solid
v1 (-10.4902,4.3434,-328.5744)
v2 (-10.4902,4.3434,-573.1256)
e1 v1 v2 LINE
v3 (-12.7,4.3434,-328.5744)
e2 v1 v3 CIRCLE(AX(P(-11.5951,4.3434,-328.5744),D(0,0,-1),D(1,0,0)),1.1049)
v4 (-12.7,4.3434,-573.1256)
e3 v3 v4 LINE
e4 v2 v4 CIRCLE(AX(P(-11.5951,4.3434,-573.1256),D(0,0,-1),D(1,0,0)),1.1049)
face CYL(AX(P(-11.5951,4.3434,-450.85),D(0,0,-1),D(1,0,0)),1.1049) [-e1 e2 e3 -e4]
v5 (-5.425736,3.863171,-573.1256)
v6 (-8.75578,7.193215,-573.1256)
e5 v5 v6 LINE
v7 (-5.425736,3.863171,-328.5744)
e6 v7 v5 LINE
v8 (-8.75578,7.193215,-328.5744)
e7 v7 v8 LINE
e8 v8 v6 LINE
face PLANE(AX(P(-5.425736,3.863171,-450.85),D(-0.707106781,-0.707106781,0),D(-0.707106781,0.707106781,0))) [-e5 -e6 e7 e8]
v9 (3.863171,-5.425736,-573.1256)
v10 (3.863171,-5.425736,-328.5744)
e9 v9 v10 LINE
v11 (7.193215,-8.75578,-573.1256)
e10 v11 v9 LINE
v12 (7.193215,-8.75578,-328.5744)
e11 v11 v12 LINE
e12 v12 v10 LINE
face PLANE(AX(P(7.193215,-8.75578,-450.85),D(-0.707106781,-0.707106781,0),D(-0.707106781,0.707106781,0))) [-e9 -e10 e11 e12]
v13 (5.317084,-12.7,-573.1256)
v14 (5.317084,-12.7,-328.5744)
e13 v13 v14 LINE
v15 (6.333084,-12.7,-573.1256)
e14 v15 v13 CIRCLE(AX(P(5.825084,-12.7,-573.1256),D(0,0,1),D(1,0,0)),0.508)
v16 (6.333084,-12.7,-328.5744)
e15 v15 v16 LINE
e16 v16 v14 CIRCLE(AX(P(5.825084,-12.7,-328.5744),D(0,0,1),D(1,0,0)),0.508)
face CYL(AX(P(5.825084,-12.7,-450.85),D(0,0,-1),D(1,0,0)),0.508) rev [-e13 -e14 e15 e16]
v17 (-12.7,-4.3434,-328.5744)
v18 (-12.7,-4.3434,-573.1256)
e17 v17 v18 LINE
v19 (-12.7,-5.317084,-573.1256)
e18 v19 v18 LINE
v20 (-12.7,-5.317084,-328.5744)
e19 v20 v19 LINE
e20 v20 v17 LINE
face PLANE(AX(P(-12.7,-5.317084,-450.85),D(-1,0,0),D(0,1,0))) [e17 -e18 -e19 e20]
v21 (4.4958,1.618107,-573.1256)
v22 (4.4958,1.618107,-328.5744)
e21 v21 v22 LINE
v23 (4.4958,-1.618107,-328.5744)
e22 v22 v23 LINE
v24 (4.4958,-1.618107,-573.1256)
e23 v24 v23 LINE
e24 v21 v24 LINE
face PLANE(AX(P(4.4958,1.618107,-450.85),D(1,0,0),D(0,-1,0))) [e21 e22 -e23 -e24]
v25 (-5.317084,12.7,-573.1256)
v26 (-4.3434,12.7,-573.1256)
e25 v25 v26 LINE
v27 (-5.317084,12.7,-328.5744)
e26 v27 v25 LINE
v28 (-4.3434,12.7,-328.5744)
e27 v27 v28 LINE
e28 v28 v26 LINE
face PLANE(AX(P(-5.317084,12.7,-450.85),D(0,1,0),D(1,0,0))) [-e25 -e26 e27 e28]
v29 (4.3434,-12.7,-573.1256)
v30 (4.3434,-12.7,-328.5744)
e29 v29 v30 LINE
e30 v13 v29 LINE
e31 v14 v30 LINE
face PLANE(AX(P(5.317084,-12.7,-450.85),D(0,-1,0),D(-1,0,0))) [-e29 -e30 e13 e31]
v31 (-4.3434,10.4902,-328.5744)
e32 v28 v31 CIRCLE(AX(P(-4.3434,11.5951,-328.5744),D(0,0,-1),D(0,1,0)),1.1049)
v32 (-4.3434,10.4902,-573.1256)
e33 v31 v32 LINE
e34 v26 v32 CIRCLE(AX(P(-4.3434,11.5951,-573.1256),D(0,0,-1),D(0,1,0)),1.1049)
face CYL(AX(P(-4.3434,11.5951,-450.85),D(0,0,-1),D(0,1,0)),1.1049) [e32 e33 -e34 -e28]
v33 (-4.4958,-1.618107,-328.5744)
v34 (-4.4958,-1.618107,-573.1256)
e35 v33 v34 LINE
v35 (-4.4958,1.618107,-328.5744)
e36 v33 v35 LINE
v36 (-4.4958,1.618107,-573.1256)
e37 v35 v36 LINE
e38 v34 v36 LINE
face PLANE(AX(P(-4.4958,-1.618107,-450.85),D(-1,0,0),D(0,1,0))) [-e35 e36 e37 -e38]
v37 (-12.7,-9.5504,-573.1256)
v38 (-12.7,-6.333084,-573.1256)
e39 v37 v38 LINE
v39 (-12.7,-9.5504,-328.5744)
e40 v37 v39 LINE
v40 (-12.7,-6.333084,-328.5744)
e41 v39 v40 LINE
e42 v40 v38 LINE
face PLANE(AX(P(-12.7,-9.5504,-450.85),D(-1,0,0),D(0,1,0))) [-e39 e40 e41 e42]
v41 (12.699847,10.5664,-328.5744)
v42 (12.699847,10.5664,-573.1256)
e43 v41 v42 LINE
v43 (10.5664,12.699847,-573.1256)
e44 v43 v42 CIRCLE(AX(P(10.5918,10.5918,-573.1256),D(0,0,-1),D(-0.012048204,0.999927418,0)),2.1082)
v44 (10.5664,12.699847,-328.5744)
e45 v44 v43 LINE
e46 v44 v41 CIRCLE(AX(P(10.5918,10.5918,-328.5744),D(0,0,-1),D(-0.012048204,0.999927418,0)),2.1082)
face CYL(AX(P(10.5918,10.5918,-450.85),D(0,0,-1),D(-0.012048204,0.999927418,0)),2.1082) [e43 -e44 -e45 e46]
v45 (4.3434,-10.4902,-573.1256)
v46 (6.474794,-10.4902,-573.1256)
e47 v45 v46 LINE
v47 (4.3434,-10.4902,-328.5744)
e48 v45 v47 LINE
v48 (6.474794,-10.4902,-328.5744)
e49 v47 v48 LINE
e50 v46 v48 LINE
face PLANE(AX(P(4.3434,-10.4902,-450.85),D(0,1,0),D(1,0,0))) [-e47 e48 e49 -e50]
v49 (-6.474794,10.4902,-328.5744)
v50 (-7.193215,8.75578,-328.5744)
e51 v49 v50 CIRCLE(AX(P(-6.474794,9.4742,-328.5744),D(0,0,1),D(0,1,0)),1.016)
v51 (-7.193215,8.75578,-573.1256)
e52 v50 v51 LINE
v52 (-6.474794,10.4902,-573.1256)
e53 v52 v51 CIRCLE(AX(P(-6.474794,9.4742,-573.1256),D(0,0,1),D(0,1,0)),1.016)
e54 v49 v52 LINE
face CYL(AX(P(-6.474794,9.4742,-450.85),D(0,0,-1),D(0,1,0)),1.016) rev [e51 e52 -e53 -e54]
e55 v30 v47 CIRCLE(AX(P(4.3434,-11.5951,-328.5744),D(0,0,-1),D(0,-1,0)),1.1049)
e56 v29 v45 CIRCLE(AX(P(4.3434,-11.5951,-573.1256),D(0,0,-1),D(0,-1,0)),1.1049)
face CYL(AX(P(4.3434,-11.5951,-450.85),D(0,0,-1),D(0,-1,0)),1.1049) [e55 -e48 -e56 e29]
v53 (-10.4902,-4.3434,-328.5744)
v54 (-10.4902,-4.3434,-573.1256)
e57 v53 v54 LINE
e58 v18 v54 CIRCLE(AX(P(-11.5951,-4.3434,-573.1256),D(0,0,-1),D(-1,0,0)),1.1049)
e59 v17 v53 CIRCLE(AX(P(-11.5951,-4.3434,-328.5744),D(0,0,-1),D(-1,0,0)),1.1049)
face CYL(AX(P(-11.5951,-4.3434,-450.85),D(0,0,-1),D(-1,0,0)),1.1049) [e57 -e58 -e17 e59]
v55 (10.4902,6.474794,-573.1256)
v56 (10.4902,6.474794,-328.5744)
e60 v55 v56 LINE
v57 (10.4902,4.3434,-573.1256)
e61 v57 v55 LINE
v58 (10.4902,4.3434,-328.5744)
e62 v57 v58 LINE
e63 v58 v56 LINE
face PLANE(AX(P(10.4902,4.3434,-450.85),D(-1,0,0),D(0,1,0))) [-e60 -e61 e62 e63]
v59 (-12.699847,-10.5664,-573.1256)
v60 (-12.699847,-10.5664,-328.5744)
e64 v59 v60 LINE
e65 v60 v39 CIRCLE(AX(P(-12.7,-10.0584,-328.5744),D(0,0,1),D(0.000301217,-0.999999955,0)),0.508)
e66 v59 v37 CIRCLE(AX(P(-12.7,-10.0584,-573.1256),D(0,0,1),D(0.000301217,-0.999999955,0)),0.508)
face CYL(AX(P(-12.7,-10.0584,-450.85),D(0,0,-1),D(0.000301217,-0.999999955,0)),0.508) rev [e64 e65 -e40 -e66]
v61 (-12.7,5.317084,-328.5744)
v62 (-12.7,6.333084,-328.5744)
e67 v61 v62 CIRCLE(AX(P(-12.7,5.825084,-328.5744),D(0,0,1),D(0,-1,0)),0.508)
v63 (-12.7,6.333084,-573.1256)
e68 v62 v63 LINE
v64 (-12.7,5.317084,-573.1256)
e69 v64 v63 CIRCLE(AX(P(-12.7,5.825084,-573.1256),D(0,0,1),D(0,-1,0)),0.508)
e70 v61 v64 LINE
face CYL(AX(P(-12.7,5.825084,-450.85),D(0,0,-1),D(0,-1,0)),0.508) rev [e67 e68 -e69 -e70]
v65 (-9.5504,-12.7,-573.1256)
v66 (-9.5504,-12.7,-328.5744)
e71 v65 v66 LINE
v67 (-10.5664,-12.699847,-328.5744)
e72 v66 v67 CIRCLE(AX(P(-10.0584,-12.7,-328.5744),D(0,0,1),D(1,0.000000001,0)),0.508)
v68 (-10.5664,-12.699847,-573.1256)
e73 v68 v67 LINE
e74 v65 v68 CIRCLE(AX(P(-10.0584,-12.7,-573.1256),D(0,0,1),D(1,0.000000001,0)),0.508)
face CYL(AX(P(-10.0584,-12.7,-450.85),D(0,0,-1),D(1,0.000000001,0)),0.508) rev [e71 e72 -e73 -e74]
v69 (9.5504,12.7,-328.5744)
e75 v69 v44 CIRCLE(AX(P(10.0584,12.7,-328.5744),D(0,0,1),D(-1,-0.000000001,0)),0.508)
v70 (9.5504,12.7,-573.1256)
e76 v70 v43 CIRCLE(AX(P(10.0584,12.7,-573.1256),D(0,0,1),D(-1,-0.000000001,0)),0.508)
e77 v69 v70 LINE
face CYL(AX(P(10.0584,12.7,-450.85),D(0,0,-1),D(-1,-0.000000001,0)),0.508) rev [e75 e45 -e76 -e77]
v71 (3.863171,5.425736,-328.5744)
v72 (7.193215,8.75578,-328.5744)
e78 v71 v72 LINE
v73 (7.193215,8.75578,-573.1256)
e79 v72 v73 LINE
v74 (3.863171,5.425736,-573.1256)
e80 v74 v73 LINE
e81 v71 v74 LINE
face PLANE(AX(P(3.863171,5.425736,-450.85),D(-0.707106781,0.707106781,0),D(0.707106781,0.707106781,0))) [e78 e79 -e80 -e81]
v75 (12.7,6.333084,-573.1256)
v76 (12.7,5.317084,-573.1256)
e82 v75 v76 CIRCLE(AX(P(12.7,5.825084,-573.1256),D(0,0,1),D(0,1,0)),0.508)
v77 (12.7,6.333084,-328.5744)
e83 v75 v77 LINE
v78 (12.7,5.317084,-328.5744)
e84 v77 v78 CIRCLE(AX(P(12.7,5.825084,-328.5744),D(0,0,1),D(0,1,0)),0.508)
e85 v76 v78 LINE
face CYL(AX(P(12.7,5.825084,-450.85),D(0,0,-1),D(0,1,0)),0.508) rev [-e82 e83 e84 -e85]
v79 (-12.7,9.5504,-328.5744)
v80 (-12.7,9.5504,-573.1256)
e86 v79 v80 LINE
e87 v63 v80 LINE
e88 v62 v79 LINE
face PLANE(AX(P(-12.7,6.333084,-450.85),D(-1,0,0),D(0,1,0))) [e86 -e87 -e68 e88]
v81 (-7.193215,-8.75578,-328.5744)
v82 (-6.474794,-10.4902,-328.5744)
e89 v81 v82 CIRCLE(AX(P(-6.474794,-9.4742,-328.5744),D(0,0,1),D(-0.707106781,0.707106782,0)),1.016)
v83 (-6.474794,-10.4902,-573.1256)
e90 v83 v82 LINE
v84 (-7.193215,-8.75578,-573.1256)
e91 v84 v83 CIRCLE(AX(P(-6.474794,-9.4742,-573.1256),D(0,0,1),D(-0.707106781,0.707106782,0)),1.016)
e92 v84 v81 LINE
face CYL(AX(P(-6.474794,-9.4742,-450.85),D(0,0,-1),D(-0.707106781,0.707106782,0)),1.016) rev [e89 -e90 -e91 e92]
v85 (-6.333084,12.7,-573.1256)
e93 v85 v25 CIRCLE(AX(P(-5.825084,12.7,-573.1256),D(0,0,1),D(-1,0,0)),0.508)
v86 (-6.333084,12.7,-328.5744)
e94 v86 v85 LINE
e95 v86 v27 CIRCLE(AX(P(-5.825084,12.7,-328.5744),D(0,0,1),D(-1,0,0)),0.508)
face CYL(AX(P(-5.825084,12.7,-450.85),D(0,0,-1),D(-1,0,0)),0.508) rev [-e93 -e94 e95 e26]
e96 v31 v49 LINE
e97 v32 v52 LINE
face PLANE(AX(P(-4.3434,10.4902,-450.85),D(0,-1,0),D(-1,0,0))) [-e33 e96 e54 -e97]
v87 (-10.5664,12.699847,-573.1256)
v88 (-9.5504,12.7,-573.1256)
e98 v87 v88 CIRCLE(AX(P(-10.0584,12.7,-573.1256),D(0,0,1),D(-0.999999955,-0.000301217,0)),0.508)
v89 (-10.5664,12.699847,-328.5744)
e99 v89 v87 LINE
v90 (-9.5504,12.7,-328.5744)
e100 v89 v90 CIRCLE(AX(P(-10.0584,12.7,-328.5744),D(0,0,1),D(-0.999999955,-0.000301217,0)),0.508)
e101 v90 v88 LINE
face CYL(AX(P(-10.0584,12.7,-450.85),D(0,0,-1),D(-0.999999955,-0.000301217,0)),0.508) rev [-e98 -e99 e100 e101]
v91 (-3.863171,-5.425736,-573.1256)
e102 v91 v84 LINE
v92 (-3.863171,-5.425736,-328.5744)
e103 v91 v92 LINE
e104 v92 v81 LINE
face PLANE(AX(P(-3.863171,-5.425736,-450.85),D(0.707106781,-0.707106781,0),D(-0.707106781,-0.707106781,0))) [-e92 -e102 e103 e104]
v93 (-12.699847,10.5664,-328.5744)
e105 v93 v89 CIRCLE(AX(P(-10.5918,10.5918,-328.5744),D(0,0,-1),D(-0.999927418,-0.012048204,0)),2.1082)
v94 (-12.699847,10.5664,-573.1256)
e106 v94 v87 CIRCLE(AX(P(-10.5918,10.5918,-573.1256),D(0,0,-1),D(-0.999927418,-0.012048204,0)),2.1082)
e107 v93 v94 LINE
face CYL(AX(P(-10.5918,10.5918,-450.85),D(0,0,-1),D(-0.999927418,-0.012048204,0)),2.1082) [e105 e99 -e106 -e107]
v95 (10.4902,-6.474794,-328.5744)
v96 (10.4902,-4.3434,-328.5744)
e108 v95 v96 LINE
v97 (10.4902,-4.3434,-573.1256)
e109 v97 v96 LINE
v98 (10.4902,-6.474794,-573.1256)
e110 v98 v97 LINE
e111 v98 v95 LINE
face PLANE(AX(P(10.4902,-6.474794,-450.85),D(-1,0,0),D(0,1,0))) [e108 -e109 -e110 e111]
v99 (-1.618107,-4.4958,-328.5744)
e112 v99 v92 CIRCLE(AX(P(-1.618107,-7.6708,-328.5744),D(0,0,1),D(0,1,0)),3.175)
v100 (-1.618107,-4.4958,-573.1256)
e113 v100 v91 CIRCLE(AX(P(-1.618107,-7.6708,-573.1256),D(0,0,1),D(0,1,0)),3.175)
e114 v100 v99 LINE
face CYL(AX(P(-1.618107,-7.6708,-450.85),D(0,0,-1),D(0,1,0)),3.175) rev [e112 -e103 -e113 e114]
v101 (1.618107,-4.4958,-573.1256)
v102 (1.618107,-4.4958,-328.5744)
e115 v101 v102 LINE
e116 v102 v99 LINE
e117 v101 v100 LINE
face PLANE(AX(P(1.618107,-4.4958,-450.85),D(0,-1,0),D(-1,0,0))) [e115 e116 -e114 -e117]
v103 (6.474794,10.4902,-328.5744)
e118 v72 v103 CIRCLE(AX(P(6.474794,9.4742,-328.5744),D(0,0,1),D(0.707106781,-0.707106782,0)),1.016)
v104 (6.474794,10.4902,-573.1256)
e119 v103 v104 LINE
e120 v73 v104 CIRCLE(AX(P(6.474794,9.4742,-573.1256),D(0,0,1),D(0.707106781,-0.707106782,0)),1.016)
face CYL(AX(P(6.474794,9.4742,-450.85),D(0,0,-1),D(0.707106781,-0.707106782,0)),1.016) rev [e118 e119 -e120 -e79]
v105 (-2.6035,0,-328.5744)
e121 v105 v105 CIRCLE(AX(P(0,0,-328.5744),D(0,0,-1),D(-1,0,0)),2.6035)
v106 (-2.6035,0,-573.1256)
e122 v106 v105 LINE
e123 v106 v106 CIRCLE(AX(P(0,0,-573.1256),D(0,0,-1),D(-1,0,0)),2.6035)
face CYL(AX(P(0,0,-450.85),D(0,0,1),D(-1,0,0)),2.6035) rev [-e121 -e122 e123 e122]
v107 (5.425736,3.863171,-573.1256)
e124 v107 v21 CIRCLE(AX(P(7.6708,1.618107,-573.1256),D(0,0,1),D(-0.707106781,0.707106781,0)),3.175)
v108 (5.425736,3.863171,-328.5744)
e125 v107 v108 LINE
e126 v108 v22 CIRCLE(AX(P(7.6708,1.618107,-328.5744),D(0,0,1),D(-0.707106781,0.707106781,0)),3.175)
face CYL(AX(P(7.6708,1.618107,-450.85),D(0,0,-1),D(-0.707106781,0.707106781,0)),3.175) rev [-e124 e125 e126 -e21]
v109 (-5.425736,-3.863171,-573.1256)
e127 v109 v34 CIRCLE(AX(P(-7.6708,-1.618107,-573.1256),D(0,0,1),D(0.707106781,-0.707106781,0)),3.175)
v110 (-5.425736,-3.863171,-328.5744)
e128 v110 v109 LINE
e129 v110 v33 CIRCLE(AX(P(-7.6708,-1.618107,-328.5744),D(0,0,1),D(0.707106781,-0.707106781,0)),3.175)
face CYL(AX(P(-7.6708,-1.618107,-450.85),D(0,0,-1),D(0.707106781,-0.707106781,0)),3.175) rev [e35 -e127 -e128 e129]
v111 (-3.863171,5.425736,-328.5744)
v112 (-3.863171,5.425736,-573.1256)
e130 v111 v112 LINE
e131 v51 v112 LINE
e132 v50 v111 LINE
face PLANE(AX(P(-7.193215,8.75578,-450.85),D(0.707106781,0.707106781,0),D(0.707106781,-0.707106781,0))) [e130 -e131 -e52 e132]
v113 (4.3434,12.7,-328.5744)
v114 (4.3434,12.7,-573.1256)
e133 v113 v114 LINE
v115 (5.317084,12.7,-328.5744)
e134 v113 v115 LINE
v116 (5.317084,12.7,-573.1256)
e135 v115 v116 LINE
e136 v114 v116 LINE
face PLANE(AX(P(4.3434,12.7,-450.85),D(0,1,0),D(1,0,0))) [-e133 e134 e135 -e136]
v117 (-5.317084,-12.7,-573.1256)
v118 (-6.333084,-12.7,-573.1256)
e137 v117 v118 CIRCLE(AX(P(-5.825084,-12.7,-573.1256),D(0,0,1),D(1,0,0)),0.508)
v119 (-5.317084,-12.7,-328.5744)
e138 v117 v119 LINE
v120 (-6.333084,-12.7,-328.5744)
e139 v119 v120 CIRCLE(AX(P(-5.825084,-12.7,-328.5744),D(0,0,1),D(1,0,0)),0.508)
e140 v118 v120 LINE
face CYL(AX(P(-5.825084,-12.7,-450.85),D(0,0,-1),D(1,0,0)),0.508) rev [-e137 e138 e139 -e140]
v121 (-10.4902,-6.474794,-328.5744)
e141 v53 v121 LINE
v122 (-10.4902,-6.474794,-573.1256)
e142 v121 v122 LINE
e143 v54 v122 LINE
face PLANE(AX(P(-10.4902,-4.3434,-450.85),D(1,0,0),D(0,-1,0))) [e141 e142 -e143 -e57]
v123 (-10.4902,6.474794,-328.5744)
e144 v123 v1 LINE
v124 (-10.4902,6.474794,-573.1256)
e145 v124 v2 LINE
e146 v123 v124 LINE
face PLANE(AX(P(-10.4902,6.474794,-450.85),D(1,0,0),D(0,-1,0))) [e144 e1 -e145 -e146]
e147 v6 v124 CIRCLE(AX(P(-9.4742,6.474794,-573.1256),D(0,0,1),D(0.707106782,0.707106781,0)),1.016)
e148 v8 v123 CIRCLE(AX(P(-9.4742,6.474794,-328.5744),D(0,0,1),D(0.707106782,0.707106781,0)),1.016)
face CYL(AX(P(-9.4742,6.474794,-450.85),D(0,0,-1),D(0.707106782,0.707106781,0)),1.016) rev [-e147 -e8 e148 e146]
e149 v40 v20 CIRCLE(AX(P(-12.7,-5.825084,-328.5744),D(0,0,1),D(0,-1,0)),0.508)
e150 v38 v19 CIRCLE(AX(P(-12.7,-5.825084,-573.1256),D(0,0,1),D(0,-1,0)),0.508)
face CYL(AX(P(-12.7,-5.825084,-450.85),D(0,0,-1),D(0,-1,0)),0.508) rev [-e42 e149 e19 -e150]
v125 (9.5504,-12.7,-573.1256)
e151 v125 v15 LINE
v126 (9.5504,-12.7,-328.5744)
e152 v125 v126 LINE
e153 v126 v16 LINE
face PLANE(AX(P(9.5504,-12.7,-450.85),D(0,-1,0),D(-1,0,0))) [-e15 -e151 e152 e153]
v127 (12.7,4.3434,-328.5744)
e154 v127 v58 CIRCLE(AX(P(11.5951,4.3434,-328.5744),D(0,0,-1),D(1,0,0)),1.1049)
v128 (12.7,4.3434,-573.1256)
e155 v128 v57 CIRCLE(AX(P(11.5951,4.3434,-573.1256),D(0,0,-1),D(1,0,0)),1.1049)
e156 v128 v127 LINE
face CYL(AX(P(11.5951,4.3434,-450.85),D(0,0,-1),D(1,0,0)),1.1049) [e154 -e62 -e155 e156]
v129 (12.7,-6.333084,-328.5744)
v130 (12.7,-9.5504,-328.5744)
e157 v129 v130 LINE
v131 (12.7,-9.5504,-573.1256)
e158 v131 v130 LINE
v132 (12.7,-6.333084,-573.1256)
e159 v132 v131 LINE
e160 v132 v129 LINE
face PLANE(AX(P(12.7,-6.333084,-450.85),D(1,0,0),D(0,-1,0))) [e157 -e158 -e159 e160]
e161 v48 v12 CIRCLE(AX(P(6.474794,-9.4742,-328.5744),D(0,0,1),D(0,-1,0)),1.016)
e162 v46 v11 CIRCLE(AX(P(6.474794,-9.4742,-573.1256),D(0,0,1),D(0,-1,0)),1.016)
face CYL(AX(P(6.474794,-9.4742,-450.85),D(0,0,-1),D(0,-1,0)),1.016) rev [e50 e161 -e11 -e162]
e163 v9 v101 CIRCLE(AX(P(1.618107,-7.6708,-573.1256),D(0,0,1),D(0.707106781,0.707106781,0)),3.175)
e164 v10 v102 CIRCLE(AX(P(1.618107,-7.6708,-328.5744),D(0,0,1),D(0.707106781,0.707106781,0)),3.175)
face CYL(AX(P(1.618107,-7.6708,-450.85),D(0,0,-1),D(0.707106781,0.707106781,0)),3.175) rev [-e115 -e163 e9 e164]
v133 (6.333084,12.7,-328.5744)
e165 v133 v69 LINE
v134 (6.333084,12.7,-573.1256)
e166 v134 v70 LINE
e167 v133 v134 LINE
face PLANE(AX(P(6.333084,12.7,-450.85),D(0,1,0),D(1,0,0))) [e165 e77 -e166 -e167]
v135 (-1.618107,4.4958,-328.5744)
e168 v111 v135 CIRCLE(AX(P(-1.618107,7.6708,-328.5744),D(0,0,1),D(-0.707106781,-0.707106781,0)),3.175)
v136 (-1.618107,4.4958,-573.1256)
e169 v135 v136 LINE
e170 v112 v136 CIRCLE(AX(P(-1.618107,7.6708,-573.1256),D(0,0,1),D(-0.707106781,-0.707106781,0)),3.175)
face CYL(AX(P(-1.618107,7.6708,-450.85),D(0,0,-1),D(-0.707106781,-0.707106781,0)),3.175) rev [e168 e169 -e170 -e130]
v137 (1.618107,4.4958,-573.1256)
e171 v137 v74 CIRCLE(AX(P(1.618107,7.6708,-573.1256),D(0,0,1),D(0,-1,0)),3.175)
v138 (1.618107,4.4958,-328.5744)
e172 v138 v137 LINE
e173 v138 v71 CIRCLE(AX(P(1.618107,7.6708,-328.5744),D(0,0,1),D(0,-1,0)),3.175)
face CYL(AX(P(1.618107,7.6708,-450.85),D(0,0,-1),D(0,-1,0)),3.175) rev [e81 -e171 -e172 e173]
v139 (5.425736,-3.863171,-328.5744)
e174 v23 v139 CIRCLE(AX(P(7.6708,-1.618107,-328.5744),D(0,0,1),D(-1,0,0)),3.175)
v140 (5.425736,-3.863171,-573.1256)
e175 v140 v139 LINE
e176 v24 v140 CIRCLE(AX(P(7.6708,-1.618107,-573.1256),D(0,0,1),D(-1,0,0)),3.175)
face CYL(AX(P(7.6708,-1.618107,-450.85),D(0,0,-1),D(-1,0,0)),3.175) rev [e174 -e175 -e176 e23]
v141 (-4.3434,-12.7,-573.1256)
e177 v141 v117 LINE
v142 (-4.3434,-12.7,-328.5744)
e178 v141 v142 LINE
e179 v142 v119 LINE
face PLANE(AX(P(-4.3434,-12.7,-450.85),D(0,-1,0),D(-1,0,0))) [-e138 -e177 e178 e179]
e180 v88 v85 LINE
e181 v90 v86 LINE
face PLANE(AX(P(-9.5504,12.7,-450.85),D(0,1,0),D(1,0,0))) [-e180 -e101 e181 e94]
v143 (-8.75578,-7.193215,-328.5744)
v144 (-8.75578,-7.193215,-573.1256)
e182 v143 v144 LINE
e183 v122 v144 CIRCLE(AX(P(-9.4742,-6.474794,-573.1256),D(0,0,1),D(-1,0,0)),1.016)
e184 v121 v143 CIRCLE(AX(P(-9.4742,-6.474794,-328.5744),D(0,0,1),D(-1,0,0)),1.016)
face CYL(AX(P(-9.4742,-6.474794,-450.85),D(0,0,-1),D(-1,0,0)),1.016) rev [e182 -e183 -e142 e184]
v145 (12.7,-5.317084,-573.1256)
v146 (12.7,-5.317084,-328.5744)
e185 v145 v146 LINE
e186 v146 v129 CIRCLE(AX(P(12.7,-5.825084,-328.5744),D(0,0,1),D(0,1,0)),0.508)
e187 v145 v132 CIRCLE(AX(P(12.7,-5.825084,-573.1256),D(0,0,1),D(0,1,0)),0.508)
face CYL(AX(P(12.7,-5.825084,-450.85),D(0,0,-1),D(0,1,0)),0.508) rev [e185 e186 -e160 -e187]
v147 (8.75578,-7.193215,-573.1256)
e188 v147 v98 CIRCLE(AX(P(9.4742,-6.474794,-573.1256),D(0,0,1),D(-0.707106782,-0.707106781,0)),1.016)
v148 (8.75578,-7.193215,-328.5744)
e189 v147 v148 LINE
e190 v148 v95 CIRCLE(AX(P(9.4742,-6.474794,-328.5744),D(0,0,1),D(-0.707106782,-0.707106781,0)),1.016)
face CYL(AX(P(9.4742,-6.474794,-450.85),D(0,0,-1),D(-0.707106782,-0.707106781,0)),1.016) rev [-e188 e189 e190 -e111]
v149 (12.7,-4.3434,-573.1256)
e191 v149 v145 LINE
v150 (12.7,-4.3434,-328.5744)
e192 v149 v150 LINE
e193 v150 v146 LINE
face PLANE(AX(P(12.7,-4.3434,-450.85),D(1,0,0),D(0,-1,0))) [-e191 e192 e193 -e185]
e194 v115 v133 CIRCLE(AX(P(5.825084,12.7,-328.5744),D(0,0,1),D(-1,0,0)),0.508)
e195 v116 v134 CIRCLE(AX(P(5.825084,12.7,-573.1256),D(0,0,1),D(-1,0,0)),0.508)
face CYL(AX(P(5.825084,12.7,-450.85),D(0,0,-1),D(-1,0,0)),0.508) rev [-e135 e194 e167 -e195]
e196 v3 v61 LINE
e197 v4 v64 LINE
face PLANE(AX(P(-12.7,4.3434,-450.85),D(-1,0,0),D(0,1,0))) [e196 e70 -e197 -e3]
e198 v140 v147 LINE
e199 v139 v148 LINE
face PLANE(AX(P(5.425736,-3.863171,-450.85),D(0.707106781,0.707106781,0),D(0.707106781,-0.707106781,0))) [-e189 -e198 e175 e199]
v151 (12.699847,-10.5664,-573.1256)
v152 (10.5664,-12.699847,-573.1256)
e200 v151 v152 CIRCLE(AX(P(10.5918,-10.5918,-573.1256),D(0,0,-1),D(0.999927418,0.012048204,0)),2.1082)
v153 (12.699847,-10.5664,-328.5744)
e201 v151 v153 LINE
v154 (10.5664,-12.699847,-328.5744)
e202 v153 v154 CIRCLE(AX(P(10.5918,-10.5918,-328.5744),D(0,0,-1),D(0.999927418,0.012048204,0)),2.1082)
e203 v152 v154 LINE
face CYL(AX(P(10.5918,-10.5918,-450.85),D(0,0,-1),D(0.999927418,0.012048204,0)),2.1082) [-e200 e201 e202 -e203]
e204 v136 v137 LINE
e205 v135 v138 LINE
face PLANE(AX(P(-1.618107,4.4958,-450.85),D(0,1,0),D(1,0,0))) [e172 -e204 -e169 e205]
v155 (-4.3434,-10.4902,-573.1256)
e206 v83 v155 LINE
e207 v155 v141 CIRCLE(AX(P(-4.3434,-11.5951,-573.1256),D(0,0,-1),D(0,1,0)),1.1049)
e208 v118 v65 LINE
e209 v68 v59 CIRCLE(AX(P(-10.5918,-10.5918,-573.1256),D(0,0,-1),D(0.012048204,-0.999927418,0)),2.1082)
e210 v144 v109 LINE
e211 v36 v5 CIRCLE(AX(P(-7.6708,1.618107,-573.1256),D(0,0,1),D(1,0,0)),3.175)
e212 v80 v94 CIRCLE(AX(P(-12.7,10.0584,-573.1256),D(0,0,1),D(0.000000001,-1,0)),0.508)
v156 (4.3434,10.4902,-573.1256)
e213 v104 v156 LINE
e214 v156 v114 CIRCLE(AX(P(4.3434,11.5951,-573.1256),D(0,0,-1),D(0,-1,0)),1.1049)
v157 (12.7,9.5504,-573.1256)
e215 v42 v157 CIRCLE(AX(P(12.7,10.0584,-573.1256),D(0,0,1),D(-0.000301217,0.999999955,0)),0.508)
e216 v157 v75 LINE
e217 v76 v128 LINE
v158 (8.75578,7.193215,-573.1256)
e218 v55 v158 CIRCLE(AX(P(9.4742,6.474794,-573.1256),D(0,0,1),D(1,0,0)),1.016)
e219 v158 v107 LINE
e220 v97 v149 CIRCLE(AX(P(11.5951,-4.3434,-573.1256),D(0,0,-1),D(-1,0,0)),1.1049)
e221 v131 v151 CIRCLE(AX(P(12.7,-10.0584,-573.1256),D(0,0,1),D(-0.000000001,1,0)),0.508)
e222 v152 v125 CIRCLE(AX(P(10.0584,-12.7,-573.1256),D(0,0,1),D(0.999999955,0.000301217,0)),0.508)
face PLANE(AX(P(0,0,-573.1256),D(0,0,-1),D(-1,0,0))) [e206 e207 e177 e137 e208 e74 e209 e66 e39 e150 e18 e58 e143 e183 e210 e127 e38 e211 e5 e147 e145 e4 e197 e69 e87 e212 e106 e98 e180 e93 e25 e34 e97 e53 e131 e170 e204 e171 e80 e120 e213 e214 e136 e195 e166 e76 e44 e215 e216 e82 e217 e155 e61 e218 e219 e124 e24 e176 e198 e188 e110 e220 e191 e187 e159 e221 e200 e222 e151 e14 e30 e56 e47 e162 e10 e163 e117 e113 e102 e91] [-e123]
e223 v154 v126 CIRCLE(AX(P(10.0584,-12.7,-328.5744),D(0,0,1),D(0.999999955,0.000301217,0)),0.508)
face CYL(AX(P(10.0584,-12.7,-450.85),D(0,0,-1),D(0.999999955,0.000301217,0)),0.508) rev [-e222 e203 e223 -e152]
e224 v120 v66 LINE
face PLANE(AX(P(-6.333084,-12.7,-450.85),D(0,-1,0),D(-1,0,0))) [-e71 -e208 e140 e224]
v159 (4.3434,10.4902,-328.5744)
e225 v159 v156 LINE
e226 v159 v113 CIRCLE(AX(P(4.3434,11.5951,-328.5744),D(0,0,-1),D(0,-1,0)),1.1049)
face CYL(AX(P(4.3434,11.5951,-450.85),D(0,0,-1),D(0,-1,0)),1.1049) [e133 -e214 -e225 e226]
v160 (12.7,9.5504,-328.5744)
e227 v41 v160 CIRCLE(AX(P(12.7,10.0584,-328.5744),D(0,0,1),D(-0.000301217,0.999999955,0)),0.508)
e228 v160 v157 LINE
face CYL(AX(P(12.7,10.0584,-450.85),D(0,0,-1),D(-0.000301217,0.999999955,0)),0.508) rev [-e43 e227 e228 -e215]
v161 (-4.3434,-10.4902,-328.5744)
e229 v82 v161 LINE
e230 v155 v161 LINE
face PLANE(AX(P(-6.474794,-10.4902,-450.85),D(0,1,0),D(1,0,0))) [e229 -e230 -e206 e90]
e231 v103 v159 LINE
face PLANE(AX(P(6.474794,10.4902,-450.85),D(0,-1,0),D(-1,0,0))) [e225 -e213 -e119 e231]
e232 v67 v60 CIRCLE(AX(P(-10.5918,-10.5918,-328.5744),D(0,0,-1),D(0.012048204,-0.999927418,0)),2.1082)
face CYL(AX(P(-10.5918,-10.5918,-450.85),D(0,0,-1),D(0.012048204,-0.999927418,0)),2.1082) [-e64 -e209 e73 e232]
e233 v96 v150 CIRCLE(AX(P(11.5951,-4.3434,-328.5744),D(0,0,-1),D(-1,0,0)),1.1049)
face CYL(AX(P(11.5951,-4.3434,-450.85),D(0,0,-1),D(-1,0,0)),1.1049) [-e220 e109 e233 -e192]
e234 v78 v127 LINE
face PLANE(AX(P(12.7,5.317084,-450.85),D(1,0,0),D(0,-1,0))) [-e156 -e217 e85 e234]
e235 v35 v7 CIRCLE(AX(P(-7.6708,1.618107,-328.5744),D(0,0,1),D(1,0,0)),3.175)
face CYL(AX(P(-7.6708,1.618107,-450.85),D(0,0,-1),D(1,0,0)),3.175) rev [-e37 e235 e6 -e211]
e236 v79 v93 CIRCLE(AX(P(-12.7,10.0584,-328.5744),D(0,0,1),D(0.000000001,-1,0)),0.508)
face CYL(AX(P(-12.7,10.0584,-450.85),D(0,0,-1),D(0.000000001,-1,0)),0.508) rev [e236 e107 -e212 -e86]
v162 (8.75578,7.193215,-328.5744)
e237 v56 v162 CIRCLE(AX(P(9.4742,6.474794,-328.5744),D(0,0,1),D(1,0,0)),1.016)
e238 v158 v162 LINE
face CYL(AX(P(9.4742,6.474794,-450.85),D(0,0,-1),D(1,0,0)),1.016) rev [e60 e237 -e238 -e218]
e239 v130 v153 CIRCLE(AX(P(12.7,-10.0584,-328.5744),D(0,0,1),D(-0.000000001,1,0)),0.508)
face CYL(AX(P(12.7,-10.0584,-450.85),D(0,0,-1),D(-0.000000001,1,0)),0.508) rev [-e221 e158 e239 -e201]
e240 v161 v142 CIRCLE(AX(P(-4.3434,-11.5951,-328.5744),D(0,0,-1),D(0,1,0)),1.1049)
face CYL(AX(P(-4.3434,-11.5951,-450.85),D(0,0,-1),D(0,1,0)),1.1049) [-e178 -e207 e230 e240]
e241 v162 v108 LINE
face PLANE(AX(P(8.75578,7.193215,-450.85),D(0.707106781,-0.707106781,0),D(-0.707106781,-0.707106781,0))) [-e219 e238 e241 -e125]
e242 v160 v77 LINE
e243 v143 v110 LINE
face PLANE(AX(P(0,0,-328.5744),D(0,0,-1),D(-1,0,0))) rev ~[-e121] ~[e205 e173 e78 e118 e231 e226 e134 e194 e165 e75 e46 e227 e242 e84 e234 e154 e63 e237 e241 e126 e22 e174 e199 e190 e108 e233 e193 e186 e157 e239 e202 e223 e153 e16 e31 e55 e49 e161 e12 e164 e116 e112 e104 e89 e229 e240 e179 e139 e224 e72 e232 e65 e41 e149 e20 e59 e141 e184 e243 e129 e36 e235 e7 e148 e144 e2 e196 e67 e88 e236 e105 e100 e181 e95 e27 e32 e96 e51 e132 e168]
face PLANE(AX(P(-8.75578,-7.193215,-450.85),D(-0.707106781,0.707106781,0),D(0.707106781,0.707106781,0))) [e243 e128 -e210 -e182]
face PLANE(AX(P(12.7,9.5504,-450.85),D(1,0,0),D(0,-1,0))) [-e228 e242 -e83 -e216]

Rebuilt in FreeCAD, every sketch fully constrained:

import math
import FreeCAD as App
import Part
import Sketcher
Q = App.Units.Quantity

doc = App.newDocument("Part")
body = doc.addObject("PartDesign::Body", "Body")

sketch1 = body.newObject("Sketcher::SketchObject", "Sketch")
sketch1.AttachmentSupport = (doc.getObject("XY_Plane"), [""])
sketch1.MapMode = "FlatFace"
sketch1.AttachmentOffset = App.Placement(App.Vector(0, 0, -17.75 * 25.4), App.Rotation())
sketch1.addGeometry([
    Part.LineSegment(App.Vector(-12.7, -9.5504, 0), App.Vector(-12.7, -6.333084, 0)),
    Part.ArcOfCircle(Part.Circle(App.Vector(-12.7, -5.825084, 0), App.Vector(0, 0, 1), 0.508), math.radians(-90), math.radians(90)),
    Part.LineSegment(App.Vector(-12.7, -5.317084, 0), App.Vector(-12.7, -4.3434, 0)),
    Part.ArcOfCircle(Part.Circle(App.Vector(-11.5951, -4.3434, 0), App.Vector(0, 0, 1), 1.1049), math.radians(0), math.radians(180)),
    Part.LineSegment(App.Vector(-10.4902, -4.3434, 0), App.Vector(-10.4902, -6.474794, 0)),
    Part.ArcOfCircle(Part.Circle(App.Vector(-9.4742, -6.474794, 0), App.Vector(0, 0, 1), 1.016), math.radians(180), math.radians(315)),
    Part.LineSegment(App.Vector(-8.75578, -7.193215, 0), App.Vector(-5.425736, -3.863171, 0)),
    Part.ArcOfCircle(Part.Circle(App.Vector(-7.6708, -1.618107, 0), App.Vector(0, 0, 1), 3.175), math.radians(-45), math.radians(0)),
    Part.LineSegment(App.Vector(-4.4958, -1.618107, 0), App.Vector(-4.4958, 1.618107, 0)),
    Part.ArcOfCircle(Part.Circle(App.Vector(-7.6708, 1.618107, 0), App.Vector(0, 0, 1), 3.175), math.radians(0), math.radians(45)),
    Part.LineSegment(App.Vector(-5.425736, 3.863171, 0), App.Vector(-8.75578, 7.193215, 0)),
    Part.ArcOfCircle(Part.Circle(App.Vector(-9.4742, 6.474794, 0), App.Vector(0, 0, 1), 1.016), math.radians(45), math.radians(180)),
    Part.LineSegment(App.Vector(-10.4902, 6.474794, 0), App.Vector(-10.4902, 4.3434, 0)),
    Part.ArcOfCircle(Part.Circle(App.Vector(-11.5951, 4.3434, 0), App.Vector(0, 0, 1), 1.1049), math.radians(180), math.radians(360)),
    Part.LineSegment(App.Vector(-12.7, 4.3434, 0), App.Vector(-12.7, 5.317084, 0)),
    Part.ArcOfCircle(Part.Circle(App.Vector(-12.7, 5.825084, 0), App.Vector(0, 0, 1), 0.508), math.radians(-90), math.radians(90)),
    Part.LineSegment(App.Vector(-12.7, 6.333084, 0), App.Vector(-12.7, 9.5504, 0)),
    Part.ArcOfCircle(Part.Circle(App.Vector(-12.7, 10.0584, 0), App.Vector(0, 0, 1), 0.508), math.radians(-90), math.radians(89.982742)),
    Part.ArcOfCircle(Part.Circle(App.Vector(-10.5918, 10.5918, 0), App.Vector(0, 0, 1), 2.1082), math.radians(89.309672), math.radians(180.690328)),
    Part.ArcOfCircle(Part.Circle(App.Vector(-10.0584, 12.7, 0), App.Vector(0, 0, 1), 0.508), math.radians(-179.982742), math.radians(0)),
    Part.LineSegment(App.Vector(-9.5504, 12.7, 0), App.Vector(-6.333084, 12.7, 0)),
    Part.ArcOfCircle(Part.Circle(App.Vector(-5.825084, 12.7, 0), App.Vector(0, 0, 1), 0.508), math.radians(180), math.radians(360)),
    Part.LineSegment(App.Vector(-5.317084, 12.7, 0), App.Vector(-4.3434, 12.7, 0)),
    Part.ArcOfCircle(Part.Circle(App.Vector(-4.3434, 11.5951, 0), App.Vector(0, 0, 1), 1.1049), math.radians(-90), math.radians(90)),
    Part.LineSegment(App.Vector(-4.3434, 10.4902, 0), App.Vector(-6.474794, 10.4902, 0)),
    Part.ArcOfCircle(Part.Circle(App.Vector(-6.474794, 9.4742, 0), App.Vector(0, 0, 1), 1.016), math.radians(90), math.radians(225)),
    Part.LineSegment(App.Vector(-7.193215, 8.75578, 0), App.Vector(-3.863171, 5.425736, 0)),
    Part.ArcOfCircle(Part.Circle(App.Vector(-1.618107, 7.6708, 0), App.Vector(0, 0, 1), 3.175), math.radians(-135), math.radians(-90)),
    Part.LineSegment(App.Vector(-1.618107, 4.4958, 0), App.Vector(1.618107, 4.4958, 0)),
    Part.ArcOfCircle(Part.Circle(App.Vector(1.618107, 7.6708, 0), App.Vector(0, 0, 1), 3.175), math.radians(-90), math.radians(-45)),
    Part.LineSegment(App.Vector(3.863171, 5.425736, 0), App.Vector(7.193215, 8.75578, 0)),
    Part.ArcOfCircle(Part.Circle(App.Vector(6.474794, 9.4742, 0), App.Vector(0, 0, 1), 1.016), math.radians(-45), math.radians(90)),
    Part.LineSegment(App.Vector(6.474794, 10.4902, 0), App.Vector(4.3434, 10.4902, 0)),
    Part.ArcOfCircle(Part.Circle(App.Vector(4.3434, 11.5951, 0), App.Vector(0, 0, 1), 1.1049), math.radians(90), math.radians(270)),
    Part.LineSegment(App.Vector(4.3434, 12.7, 0), App.Vector(5.317084, 12.7, 0)),
    Part.ArcOfCircle(Part.Circle(App.Vector(5.825084, 12.7, 0), App.Vector(0, 0, 1), 0.508), math.radians(180), math.radians(360)),
    Part.LineSegment(App.Vector(6.333084, 12.7, 0), App.Vector(9.5504, 12.7, 0)),
    Part.ArcOfCircle(Part.Circle(App.Vector(10.0584, 12.7, 0), App.Vector(0, 0, 1), 0.508), math.radians(180), math.radians(359.982742)),
    Part.ArcOfCircle(Part.Circle(App.Vector(10.5918, 10.5918, 0), App.Vector(0, 0, 1), 2.1082), math.radians(-0.690328), math.radians(90.690328)),
    Part.ArcOfCircle(Part.Circle(App.Vector(12.7, 10.0584, 0), App.Vector(0, 0, 1), 0.508), math.radians(90.017258), math.radians(270)),
    Part.LineSegment(App.Vector(12.7, 9.5504, 0), App.Vector(12.7, 6.333084, 0)),
    Part.ArcOfCircle(Part.Circle(App.Vector(12.7, 5.825084, 0), App.Vector(0, 0, 1), 0.508), math.radians(90), math.radians(270)),
    Part.LineSegment(App.Vector(12.7, 5.317084, 0), App.Vector(12.7, 4.3434, 0)),
    Part.ArcOfCircle(Part.Circle(App.Vector(11.5951, 4.3434, 0), App.Vector(0, 0, 1), 1.1049), math.radians(180), math.radians(360)),
    Part.LineSegment(App.Vector(10.4902, 4.3434, 0), App.Vector(10.4902, 6.474794, 0)),
    Part.ArcOfCircle(Part.Circle(App.Vector(9.4742, 6.474794, 0), App.Vector(0, 0, 1), 1.016), math.radians(0), math.radians(135)),
    Part.LineSegment(App.Vector(8.75578, 7.193215, 0), App.Vector(5.425736, 3.863171, 0)),
    Part.ArcOfCircle(Part.Circle(App.Vector(7.6708, 1.618107, 0), App.Vector(0, 0, 1), 3.175), math.radians(135), math.radians(180)),
    Part.LineSegment(App.Vector(4.4958, 1.618107, 0), App.Vector(4.4958, -1.618107, 0)),
    Part.ArcOfCircle(Part.Circle(App.Vector(7.6708, -1.618107, 0), App.Vector(0, 0, 1), 3.175), math.radians(180), math.radians(225)),
    Part.LineSegment(App.Vector(5.425736, -3.863171, 0), App.Vector(8.75578, -7.193215, 0)),
    Part.ArcOfCircle(Part.Circle(App.Vector(9.4742, -6.474794, 0), App.Vector(0, 0, 1), 1.016), math.radians(-135), math.radians(0)),
    Part.LineSegment(App.Vector(10.4902, -6.474794, 0), App.Vector(10.4902, -4.3434, 0)),
    Part.ArcOfCircle(Part.Circle(App.Vector(11.5951, -4.3434, 0), App.Vector(0, 0, 1), 1.1049), math.radians(0), math.radians(180)),
    Part.LineSegment(App.Vector(12.7, -4.3434, 0), App.Vector(12.7, -5.317084, 0)),
    Part.ArcOfCircle(Part.Circle(App.Vector(12.7, -5.825084, 0), App.Vector(0, 0, 1), 0.508), math.radians(90), math.radians(270)),
    Part.LineSegment(App.Vector(12.7, -6.333084, 0), App.Vector(12.7, -9.5504, 0)),
    Part.ArcOfCircle(Part.Circle(App.Vector(12.7, -10.0584, 0), App.Vector(0, 0, 1), 0.508), math.radians(90), math.radians(269.982742)),
    Part.ArcOfCircle(Part.Circle(App.Vector(10.5918, -10.5918, 0), App.Vector(0, 0, 1), 2.1082), math.radians(-90.690328), math.radians(0.690328)),
    Part.ArcOfCircle(Part.Circle(App.Vector(10.0584, -12.7, 0), App.Vector(0, 0, 1), 0.508), math.radians(0.017258), math.radians(180)),
    Part.LineSegment(App.Vector(9.5504, -12.7, 0), App.Vector(6.333084, -12.7, 0)),
    Part.ArcOfCircle(Part.Circle(App.Vector(5.825084, -12.7, 0), App.Vector(0, 0, 1), 0.508), math.radians(0), math.radians(180)),
    Part.LineSegment(App.Vector(5.317084, -12.7, 0), App.Vector(4.3434, -12.7, 0)),
    Part.ArcOfCircle(Part.Circle(App.Vector(4.3434, -11.5951, 0), App.Vector(0, 0, 1), 1.1049), math.radians(90), math.radians(270)),
    Part.LineSegment(App.Vector(4.3434, -10.4902, 0), App.Vector(6.474794, -10.4902, 0)),
    Part.ArcOfCircle(Part.Circle(App.Vector(6.474794, -9.4742, 0), App.Vector(0, 0, 1), 1.016), math.radians(-90), math.radians(45)),
    Part.LineSegment(App.Vector(7.193215, -8.75578, 0), App.Vector(3.863171, -5.425736, 0)),
    Part.ArcOfCircle(Part.Circle(App.Vector(1.618107, -7.6708, 0), App.Vector(0, 0, 1), 3.175), math.radians(45), math.radians(90)),
    Part.LineSegment(App.Vector(1.618107, -4.4958, 0), App.Vector(-1.618107, -4.4958, 0)),
    Part.ArcOfCircle(Part.Circle(App.Vector(-1.618107, -7.6708, 0), App.Vector(0, 0, 1), 3.175), math.radians(90), math.radians(135)),
    Part.LineSegment(App.Vector(-3.863171, -5.425736, 0), App.Vector(-7.193215, -8.75578, 0)),
    Part.ArcOfCircle(Part.Circle(App.Vector(-6.474794, -9.4742, 0), App.Vector(0, 0, 1), 1.016), math.radians(135), math.radians(270)),
    Part.LineSegment(App.Vector(-6.474794, -10.4902, 0), App.Vector(-4.3434, -10.4902, 0)),
    Part.ArcOfCircle(Part.Circle(App.Vector(-4.3434, -11.5951, 0), App.Vector(0, 0, 1), 1.1049), math.radians(-90), math.radians(90)),
    Part.LineSegment(App.Vector(-4.3434, -12.7, 0), App.Vector(-5.317084, -12.7, 0)),
    Part.ArcOfCircle(Part.Circle(App.Vector(-5.825084, -12.7, 0), App.Vector(0, 0, 1), 0.508), math.radians(0), math.radians(180)),
    Part.LineSegment(App.Vector(-6.333084, -12.7, 0), App.Vector(-9.5504, -12.7, 0)),
    Part.ArcOfCircle(Part.Circle(App.Vector(-10.0584, -12.7, 0), App.Vector(0, 0, 1), 0.508), math.radians(0), math.radians(179.982742)),
    Part.ArcOfCircle(Part.Circle(App.Vector(-10.5918, -10.5918, 0), App.Vector(0, 0, 1), 2.1082), math.radians(179.309672), math.radians(270.690328)),
    Part.ArcOfCircle(Part.Circle(App.Vector(-12.7, -10.0584, 0), App.Vector(0, 0, 1), 0.508), math.radians(-89.982742), math.radians(90)),
    Part.Circle(App.Vector(0, 0, 0), App.Vector(0, 0, 1), 2.6035),
], False)
sketch1.addConstraint([
    Sketcher.Constraint("Coincident", 0, 2, 1, 1),
    Sketcher.Constraint("Coincident", 1, 2, 2, 1),
    Sketcher.Constraint("Tangent", 2, 2, 3, 2),
    Sketcher.Constraint("Tangent", 3, 1, 4, 1),
    Sketcher.Constraint("Tangent", 4, 2, 5, 1),
    Sketcher.Constraint("Tangent", 5, 2, 6, 1),
    Sketcher.Constraint("Tangent", 6, 2, 7, 1),
    Sketcher.Constraint("Tangent", 7, 2, 8, 1),
    Sketcher.Constraint("Tangent", 8, 2, 9, 1),
    Sketcher.Constraint("Tangent", 9, 2, 10, 1),
    Sketcher.Constraint("Tangent", 10, 2, 11, 1),
    Sketcher.Constraint("Tangent", 11, 2, 12, 1),
    Sketcher.Constraint("Tangent", 12, 2, 13, 2),
    Sketcher.Constraint("Tangent", 13, 1, 14, 1),
    Sketcher.Constraint("Coincident", 14, 2, 15, 1),
    Sketcher.Constraint("Coincident", 15, 2, 16, 1),
    Sketcher.Constraint("Coincident", 16, 2, 17, 1),
    Sketcher.Constraint("Coincident", 17, 2, 18, 2),
    Sketcher.Constraint("Coincident", 18, 1, 19, 1),
    Sketcher.Constraint("Coincident", 19, 2, 20, 1),
    Sketcher.Constraint("Coincident", 20, 2, 21, 1),
    Sketcher.Constraint("Coincident", 21, 2, 22, 1),
    Sketcher.Constraint("Tangent", 22, 2, 23, 2),
    Sketcher.Constraint("Tangent", 23, 1, 24, 1),
    Sketcher.Constraint("Tangent", 24, 2, 25, 1),
    Sketcher.Constraint("Tangent", 25, 2, 26, 1),
    Sketcher.Constraint("Tangent", 26, 2, 27, 1),
    Sketcher.Constraint("Tangent", 27, 2, 28, 1),
    Sketcher.Constraint("Tangent", 28, 2, 29, 1),
    Sketcher.Constraint("Tangent", 29, 2, 30, 1),
    Sketcher.Constraint("Tangent", 30, 2, 31, 1),
    Sketcher.Constraint("Tangent", 31, 2, 32, 1),
    Sketcher.Constraint("Tangent", 32, 2, 33, 2),
    Sketcher.Constraint("Tangent", 33, 1, 34, 1),
    Sketcher.Constraint("Coincident", 34, 2, 35, 1),
    Sketcher.Constraint("Coincident", 35, 2, 36, 1),
    Sketcher.Constraint("Coincident", 36, 2, 37, 1),
    Sketcher.Constraint("Coincident", 37, 2, 38, 2),
    Sketcher.Constraint("Coincident", 38, 1, 39, 1),
    Sketcher.Constraint("Coincident", 39, 2, 40, 1),
    Sketcher.Constraint("Coincident", 40, 2, 41, 1),
    Sketcher.Constraint("Coincident", 41, 2, 42, 1),
    Sketcher.Constraint("Tangent", 42, 2, 43, 2),
    Sketcher.Constraint("Tangent", 43, 1, 44, 1),
    Sketcher.Constraint("Tangent", 44, 2, 45, 1),
    Sketcher.Constraint("Tangent", 45, 2, 46, 1),
    Sketcher.Constraint("Tangent", 46, 2, 47, 1),
    Sketcher.Constraint("Tangent", 47, 2, 48, 1),
    Sketcher.Constraint("Tangent", 48, 2, 49, 1),
    Sketcher.Constraint("Tangent", 49, 2, 50, 1),
    Sketcher.Constraint("Tangent", 50, 2, 51, 1),
    Sketcher.Constraint("Tangent", 51, 2, 52, 1),
    Sketcher.Constraint("Tangent", 52, 2, 53, 2),
    Sketcher.Constraint("Tangent", 53, 1, 54, 1),
    Sketcher.Constraint("Coincident", 54, 2, 55, 1),
    Sketcher.Constraint("Coincident", 55, 2, 56, 1),
    Sketcher.Constraint("Coincident", 56, 2, 57, 1),
    Sketcher.Constraint("Coincident", 57, 2, 58, 2),
    Sketcher.Constraint("Coincident", 58, 1, 59, 1),
    Sketcher.Constraint("Coincident", 59, 2, 60, 1),
    Sketcher.Constraint("Coincident", 60, 2, 61, 1),
    Sketcher.Constraint("Coincident", 61, 2, 62, 1),
    Sketcher.Constraint("Tangent", 62, 2, 63, 2),
    Sketcher.Constraint("Tangent", 63, 1, 64, 1),
    Sketcher.Constraint("Tangent", 64, 2, 65, 1),
    Sketcher.Constraint("Tangent", 65, 2, 66, 1),
    Sketcher.Constraint("Tangent", 66, 2, 67, 1),
    Sketcher.Constraint("Tangent", 67, 2, 68, 1),
    Sketcher.Constraint("Tangent", 68, 2, 69, 1),
    Sketcher.Constraint("Tangent", 69, 2, 70, 1),
    Sketcher.Constraint("Tangent", 70, 2, 71, 1),
    Sketcher.Constraint("Tangent", 71, 2, 72, 1),
    Sketcher.Constraint("Tangent", 72, 2, 73, 2),
    Sketcher.Constraint("Tangent", 73, 1, 74, 1),
    Sketcher.Constraint("Coincident", 74, 2, 75, 1),
    Sketcher.Constraint("Coincident", 75, 2, 76, 1),
    Sketcher.Constraint("Coincident", 76, 2, 77, 1),
    Sketcher.Constraint("Coincident", 77, 2, 78, 2),
    Sketcher.Constraint("Coincident", 78, 1, 79, 1),
    Sketcher.Constraint("Coincident", 79, 2, 0, 1),
    Sketcher.Constraint("Vertical", 0),
    Sketcher.Constraint("Vertical", 2),
    Sketcher.Constraint("Vertical", 4),
    Sketcher.Constraint("Vertical", 8),
    Sketcher.Constraint("Vertical", 12),
    Sketcher.Constraint("Vertical", 14),
    Sketcher.Constraint("Vertical", 16),
    Sketcher.Constraint("Horizontal", 20),
    Sketcher.Constraint("Horizontal", 22),
    Sketcher.Constraint("Horizontal", 24),
    Sketcher.Constraint("Horizontal", 28),
    Sketcher.Constraint("Horizontal", 32),
    Sketcher.Constraint("Horizontal", 34),
    Sketcher.Constraint("Horizontal", 36),
    Sketcher.Constraint("Vertical", 40),
    Sketcher.Constraint("Vertical", 42),
    Sketcher.Constraint("Vertical", 44),
    Sketcher.Constraint("Vertical", 48),
    Sketcher.Constraint("Vertical", 52),
    Sketcher.Constraint("Vertical", 54),
    Sketcher.Constraint("Vertical", 56),
    Sketcher.Constraint("Horizontal", 60),
    Sketcher.Constraint("Horizontal", 62),
    Sketcher.Constraint("Horizontal", 64),
    Sketcher.Constraint("Horizontal", 68),
    Sketcher.Constraint("Horizontal", 72),
    Sketcher.Constraint("Horizontal", 74),
    Sketcher.Constraint("Horizontal", 76),
    Sketcher.Constraint("Coincident", 80, 3, -1, 1),
    Sketcher.Constraint("Equal", 7, 9),
    Sketcher.Constraint("Equal", 5, 11),
    Sketcher.Constraint("Equal", 3, 13),
    Sketcher.Constraint("Equal", 1, 15),
    Sketcher.Constraint("Equal", 15, 17),
    Sketcher.Constraint("Equal", 17, 19),
    Sketcher.Constraint("Equal", 19, 21),
    Sketcher.Constraint("Equal", 13, 23),
    Sketcher.Constraint("Equal", 11, 25),
    Sketcher.Constraint("Equal", 9, 27),
    Sketcher.Constraint("Equal", 27, 29),
    Sketcher.Constraint("Equal", 25, 31),
    Sketcher.Constraint("Equal", 23, 33),
    Sketcher.Constraint("Equal", 21, 35),
    Sketcher.Constraint("Equal", 35, 37),
    Sketcher.Constraint("Equal", 18, 38),
    Sketcher.Constraint("Equal", 37, 39),
    Sketcher.Constraint("Equal", 39, 41),
    Sketcher.Constraint("Equal", 33, 43),
    Sketcher.Constraint("Equal", 31, 45),
    Sketcher.Constraint("Equal", 29, 47),
    Sketcher.Constraint("Equal", 47, 49),
    Sketcher.Constraint("Equal", 45, 51),
    Sketcher.Constraint("Equal", 43, 53),
    Sketcher.Constraint("Equal", 41, 55),
    Sketcher.Constraint("Equal", 55, 57),
    Sketcher.Constraint("Equal", 38, 58),
    Sketcher.Constraint("Equal", 57, 59),
    Sketcher.Constraint("Equal", 59, 61),
    Sketcher.Constraint("Equal", 53, 63),
    Sketcher.Constraint("Equal", 51, 65),
    Sketcher.Constraint("Equal", 49, 67),
    Sketcher.Constraint("Equal", 67, 69),
    Sketcher.Constraint("Equal", 65, 71),
    Sketcher.Constraint("Equal", 63, 73),
    Sketcher.Constraint("Equal", 61, 75),
    Sketcher.Constraint("Equal", 75, 77),
    Sketcher.Constraint("Equal", 58, 78),
    Sketcher.Constraint("Equal", 77, 79),
    Sketcher.Constraint("Symmetric", 1, 3, 41, 3, -1, 1),
    Sketcher.Constraint("Symmetric", 3, 3, 43, 3, -1, 1),
    Sketcher.Constraint("Symmetric", 7, 3, 47, 3, -1, 1),
    Sketcher.Constraint("Symmetric", 11, 3, 51, 3, -1, 1),
    Sketcher.Constraint("Symmetric", 15, 3, 55, 3, -1, 1),
    Sketcher.Constraint("Symmetric", 17, 3, 57, 3, -1, 1),
    Sketcher.Constraint("Symmetric", 18, 3, 58, 3, -1, 1),
    Sketcher.Constraint("Symmetric", 19, 3, 59, 3, -1, 1),
    Sketcher.Constraint("Symmetric", 21, 3, 61, 3, -1, 1),
    Sketcher.Constraint("Symmetric", 23, 3, 63, 3, -1, 1),
    Sketcher.Constraint("Symmetric", 27, 3, 67, 3, -1, 1),
    Sketcher.Constraint("Symmetric", 31, 3, 71, 3, -1, 1),
    Sketcher.Constraint("Symmetric", 35, 3, 75, 3, -1, 1),
    Sketcher.Constraint("Symmetric", 37, 3, 77, 3, -1, 1),
    Sketcher.Constraint("Symmetric", 38, 3, 78, 3, -1, 1),
    Sketcher.Constraint("Symmetric", 39, 3, 79, 3, -1, 1),
    Sketcher.Constraint("Symmetric", 25, 3, 31, 3, -2),
    Sketcher.Constraint("Symmetric", 21, 3, 35, 3, -2),
    Sketcher.Constraint("Symmetric", 19, 3, 37, 3, -2),
    Sketcher.Constraint("Symmetric", 18, 3, 38, 3, -2),
    Sketcher.Constraint("Symmetric", 17, 3, 39, 3, -2),
    Sketcher.Constraint("Symmetric", 15, 3, 41, 3, -2),
    Sketcher.Constraint("Symmetric", 13, 3, 43, 3, -2),
    Sketcher.Constraint("Symmetric", 10, 2, 45, 2, -2),
    Sketcher.Constraint("Symmetric", 6, 2, 49, 2, -2),
    Sketcher.Constraint("Symmetric", 66, 2, 69, 2, -2),
    Sketcher.Constraint("Perpendicular", 6, 10),
    Sketcher.Constraint("Parallel", 10, 26),
    Sketcher.Constraint("Perpendicular", 26, 30),
    Sketcher.Constraint("Horizontal", 19, 3, 21, 3),
    Sketcher.Constraint("Horizontal", 3, 3, 53, 3),
    Sketcher.Constraint("Horizontal", 37, 3, 19, 2),
    Sketcher.Constraint("Horizontal", 20, 2, 21, 2),
    Sketcher.Constraint("Horizontal", 34, 2, 35, 2),
    Sketcher.Constraint("Horizontal", 77, 3, 59, 2),
    Sketcher.Constraint("Horizontal", 74, 2, 75, 2),
    Sketcher.Constraint("Vertical", 15, 3, 17, 3),
    Sketcher.Constraint("Vertical", 33, 3, 63, 3),
    Sketcher.Constraint("Vertical", 23, 3, 73, 3),
    Sketcher.Constraint("Vertical", 79, 3, 0, 2),
    Sketcher.Constraint("Vertical", 0, 2, 1, 2),
    Sketcher.Constraint("Vertical", 14, 2, 15, 2),
    Sketcher.Constraint("Vertical", 57, 3, 39, 2),
    Sketcher.Constraint("Vertical", 54, 2, 55, 2),
    Sketcher.Constraint("Equal", 76, 0),
    Sketcher.Constraint("Equal", 74, 2),
    Sketcher.Constraint("Equal", 72, 4),
    Sketcher.Constraint("Equal", 68, 8),
    Sketcher.Constraint("Equal", 10, 26),
    Sketcher.Constraint("Radius", 1, Q("0.02 in")),
    Sketcher.Constraint("Radius", 5, Q("0.04 in")),
    Sketcher.Constraint("Diameter", 80, Q("0.205 in")),
    Sketcher.Constraint("Radius", 7, Q("0.125 in")),
    Sketcher.Constraint("Radius", 18, Q("0.083 in")),
    Sketcher.Constraint("DistanceX", 1, 3, -1, 1, Q("0.5 in")),
    Sketcher.Constraint("DistanceY", -1, 1, 19, 3, Q("0.5 in")),
    Sketcher.Constraint("Radius", 3, Q("0.0435 in")),
    Sketcher.Constraint("DistanceY", 3, 3, -1, 1, Q("0.171 in")),
    Sketcher.Constraint("DistanceX", 7, 3, -1, 1, Q("0.302 in")),
    Sketcher.Constraint("DistanceY", -1, 1, 17, 3, Q("0.396 in")),
    Sketcher.Constraint("DistanceX", 18, 3, -1, 1, Q("0.417 in")),
    Sketcher.Constraint("DistanceY", -1, 1, 18, 3, Q("0.417 in")),
    Sketcher.Constraint("DistanceX", 20, 1, 20, 2, 3.217316),
    Sketcher.Constraint("DistanceX", 24, 2, 24, 1, 2.131394),
])
pad1 = body.newObject("PartDesign::Pad", "Pad")
pad1.Profile = sketch1
pad1.Length = Q("9.628 in")
pad1.Midplane = True

doc.recompute()
